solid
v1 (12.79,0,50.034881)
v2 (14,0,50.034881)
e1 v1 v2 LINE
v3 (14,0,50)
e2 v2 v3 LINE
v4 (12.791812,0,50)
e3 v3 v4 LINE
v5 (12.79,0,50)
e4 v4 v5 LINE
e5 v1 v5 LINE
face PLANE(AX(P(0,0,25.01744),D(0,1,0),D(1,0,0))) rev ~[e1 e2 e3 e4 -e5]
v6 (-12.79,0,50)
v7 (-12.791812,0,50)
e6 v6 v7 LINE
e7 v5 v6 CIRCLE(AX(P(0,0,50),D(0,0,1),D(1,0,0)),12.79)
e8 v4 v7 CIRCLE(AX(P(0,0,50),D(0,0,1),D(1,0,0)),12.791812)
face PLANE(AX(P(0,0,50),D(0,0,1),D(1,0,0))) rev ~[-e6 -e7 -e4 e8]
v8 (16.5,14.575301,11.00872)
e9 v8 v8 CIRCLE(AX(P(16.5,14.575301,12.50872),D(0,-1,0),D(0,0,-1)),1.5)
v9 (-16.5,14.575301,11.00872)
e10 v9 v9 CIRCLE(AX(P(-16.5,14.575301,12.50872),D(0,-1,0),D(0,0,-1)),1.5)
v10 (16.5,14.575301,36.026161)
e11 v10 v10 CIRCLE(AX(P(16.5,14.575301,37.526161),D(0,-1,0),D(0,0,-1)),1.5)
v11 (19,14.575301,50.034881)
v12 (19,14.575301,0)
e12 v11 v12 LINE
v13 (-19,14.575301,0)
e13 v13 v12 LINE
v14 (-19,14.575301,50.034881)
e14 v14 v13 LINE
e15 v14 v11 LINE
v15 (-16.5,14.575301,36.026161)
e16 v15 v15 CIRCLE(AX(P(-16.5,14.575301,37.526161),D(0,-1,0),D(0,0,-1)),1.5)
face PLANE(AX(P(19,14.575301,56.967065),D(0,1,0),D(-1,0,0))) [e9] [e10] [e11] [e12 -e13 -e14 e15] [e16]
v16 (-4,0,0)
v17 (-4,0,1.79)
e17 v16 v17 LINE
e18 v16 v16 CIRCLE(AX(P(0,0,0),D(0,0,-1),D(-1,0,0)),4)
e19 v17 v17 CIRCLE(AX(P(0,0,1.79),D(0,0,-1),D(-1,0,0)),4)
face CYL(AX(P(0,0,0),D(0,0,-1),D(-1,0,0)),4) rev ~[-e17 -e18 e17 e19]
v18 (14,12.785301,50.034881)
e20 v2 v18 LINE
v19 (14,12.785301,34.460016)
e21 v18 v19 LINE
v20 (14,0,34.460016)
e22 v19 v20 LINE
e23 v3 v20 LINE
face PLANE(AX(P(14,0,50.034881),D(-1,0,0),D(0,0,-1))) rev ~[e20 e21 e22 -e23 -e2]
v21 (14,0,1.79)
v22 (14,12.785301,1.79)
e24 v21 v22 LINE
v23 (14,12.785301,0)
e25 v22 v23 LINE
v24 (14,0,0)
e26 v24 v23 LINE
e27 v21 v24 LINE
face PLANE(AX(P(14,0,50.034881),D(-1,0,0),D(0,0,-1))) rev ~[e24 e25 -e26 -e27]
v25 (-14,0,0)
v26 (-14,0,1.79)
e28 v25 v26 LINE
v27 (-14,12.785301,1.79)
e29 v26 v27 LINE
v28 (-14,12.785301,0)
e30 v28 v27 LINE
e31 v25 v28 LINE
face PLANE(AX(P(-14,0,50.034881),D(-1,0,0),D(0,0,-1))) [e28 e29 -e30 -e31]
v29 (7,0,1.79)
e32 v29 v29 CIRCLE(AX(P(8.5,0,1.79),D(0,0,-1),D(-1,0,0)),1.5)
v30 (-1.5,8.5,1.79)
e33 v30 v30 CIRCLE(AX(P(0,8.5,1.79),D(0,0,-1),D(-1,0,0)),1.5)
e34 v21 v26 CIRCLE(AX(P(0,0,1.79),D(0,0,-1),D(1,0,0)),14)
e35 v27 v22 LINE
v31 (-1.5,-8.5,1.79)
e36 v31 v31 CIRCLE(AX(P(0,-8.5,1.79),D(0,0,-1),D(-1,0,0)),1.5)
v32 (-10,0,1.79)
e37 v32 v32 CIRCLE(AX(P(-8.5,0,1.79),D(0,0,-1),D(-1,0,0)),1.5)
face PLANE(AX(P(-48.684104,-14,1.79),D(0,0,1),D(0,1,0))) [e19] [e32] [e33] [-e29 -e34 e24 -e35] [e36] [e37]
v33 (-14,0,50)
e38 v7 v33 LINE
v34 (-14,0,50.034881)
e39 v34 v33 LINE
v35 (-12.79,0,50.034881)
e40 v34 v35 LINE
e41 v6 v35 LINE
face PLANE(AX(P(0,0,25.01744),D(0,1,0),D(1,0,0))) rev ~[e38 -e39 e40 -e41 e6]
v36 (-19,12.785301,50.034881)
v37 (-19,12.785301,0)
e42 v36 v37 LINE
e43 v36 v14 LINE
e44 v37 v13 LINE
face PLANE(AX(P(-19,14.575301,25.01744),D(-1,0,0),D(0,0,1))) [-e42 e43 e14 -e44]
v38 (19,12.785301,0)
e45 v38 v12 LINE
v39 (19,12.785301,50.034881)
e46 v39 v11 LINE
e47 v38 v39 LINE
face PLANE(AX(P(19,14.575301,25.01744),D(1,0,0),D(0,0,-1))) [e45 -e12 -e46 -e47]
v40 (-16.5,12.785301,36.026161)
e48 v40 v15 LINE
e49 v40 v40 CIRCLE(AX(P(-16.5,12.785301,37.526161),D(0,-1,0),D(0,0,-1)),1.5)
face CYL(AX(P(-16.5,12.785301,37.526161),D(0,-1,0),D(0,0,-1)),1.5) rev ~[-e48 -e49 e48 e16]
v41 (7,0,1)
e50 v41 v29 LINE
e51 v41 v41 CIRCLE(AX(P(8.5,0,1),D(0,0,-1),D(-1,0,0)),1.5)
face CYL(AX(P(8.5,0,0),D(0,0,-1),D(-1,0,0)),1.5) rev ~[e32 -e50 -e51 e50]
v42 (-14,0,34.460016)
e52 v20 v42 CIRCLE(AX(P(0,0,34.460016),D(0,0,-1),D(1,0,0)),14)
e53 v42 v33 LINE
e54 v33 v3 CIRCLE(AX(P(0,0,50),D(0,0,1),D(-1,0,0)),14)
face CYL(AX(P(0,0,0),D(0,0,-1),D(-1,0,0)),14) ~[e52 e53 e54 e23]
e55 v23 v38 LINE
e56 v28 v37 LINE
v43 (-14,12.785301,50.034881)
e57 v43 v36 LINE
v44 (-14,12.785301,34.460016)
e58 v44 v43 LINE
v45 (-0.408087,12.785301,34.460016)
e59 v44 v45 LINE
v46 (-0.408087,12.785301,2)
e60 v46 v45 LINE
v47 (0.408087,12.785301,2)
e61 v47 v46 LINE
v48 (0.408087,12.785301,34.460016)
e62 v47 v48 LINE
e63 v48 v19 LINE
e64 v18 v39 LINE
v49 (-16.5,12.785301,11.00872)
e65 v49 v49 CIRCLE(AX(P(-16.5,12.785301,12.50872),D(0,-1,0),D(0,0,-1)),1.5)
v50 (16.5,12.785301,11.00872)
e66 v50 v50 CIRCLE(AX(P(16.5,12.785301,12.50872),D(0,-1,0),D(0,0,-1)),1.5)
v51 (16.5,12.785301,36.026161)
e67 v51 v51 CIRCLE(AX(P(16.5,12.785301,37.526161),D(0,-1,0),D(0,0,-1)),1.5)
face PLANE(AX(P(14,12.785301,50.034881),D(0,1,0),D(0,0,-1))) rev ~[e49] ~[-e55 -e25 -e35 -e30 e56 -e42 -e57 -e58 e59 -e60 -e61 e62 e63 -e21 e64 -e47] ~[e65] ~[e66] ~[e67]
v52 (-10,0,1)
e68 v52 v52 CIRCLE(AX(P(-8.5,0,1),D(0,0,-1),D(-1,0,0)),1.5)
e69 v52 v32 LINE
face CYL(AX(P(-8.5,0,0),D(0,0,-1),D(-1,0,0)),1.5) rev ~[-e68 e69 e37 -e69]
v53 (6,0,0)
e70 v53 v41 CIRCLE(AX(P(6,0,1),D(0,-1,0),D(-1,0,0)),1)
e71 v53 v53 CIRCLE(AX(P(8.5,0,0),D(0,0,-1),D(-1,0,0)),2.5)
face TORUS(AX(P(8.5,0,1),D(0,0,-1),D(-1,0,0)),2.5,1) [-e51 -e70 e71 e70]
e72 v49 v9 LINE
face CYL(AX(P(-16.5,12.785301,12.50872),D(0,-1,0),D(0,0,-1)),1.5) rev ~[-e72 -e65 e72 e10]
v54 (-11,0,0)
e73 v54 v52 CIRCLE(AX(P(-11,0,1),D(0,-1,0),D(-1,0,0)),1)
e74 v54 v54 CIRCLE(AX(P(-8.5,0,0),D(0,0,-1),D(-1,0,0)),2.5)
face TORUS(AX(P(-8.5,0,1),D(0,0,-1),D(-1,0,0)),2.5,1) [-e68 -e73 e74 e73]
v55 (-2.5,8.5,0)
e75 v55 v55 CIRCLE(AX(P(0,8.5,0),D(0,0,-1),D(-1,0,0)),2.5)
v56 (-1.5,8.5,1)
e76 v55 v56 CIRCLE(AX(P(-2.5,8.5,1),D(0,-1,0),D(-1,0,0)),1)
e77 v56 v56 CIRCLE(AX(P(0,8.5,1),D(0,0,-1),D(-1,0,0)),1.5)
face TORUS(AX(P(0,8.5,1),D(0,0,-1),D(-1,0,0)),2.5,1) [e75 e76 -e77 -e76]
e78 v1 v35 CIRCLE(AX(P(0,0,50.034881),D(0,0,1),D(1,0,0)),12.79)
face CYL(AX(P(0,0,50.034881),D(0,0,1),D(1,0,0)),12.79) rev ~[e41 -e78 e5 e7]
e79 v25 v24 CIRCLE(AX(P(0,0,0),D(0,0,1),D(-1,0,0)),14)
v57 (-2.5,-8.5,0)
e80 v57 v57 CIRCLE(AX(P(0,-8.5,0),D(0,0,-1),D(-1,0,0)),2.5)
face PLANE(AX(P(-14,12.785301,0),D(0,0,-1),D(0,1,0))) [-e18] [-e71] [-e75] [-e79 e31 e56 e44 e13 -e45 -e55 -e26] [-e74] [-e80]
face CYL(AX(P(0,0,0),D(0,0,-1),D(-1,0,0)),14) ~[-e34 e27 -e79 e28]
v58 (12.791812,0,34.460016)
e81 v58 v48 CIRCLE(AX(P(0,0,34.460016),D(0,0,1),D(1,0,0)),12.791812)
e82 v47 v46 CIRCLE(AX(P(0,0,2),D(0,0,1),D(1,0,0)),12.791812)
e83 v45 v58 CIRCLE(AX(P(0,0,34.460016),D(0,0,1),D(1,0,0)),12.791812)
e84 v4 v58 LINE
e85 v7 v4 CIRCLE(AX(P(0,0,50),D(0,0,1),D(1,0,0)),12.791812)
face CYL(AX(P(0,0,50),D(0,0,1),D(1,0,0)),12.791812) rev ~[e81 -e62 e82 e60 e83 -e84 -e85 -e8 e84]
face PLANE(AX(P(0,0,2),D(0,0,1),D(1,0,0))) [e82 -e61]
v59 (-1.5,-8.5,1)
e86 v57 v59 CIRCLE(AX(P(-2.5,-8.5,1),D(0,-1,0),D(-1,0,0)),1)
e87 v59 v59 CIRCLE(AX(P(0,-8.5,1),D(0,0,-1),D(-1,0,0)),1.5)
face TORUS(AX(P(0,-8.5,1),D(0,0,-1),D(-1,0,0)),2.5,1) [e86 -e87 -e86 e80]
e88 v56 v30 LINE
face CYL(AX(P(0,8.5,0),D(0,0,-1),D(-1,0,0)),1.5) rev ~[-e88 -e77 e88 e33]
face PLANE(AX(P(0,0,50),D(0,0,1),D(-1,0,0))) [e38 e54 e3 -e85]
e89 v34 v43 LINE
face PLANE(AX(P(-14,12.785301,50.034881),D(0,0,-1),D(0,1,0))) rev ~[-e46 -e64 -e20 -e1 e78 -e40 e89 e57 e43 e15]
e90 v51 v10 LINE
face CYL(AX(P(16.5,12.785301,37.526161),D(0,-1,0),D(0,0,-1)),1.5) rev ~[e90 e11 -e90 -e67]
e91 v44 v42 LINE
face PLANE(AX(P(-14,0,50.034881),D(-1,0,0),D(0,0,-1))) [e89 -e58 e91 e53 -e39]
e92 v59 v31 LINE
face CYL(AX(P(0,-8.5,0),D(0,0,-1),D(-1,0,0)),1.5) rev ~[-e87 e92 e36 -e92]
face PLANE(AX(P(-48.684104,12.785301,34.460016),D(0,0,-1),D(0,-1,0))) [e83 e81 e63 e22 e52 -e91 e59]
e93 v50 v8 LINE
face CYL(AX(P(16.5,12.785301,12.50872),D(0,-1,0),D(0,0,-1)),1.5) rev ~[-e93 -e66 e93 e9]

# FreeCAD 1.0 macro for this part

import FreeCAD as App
import Part
import Sketcher


def edges_at(feature, points):
    """Names of the edges that pass closest to the given points."""
    edges = feature.Shape.Edges
    near = lambda p: min(range(len(edges)), key=lambda i: edges[i].distToShape(Part.Vertex(*p))[0])
    return sorted({f"Edge{near(p) + 1}" for p in points})

doc = App.newDocument("Part")
body = doc.addObject("PartDesign::Body", "Body")

# Sketch on XY plane
sketch1 = doc.addObject("Sketcher::SketchObject", "Sketch")
body.addObject(sketch1)
sketch1.AttachmentSupport = (doc.XY_Plane, [""])
sketch1.MapMode = "FlatFace"
sketch1.addGeometry(Part.Circle(App.Vector(0, 0, 0), App.Vector(0, 0, 1), 14), False)
sketch1.addConstraint([
    Sketcher.Constraint("Coincident", 0, 3, -1, 1),
    Sketcher.Constraint("Diameter", 0, 28.0),
])
pad1 = doc.addObject("PartDesign::Pad", "Pad")
body.addObject(pad1)
pad1.Profile = sketch1
pad1.Length = 50

# Sketch on XZ plane
sketch2 = doc.addObject("Sketcher::SketchObject", "Sketch001")
body.addObject(sketch2)
sketch2.AttachmentSupport = (doc.XZ_Plane, [""])
sketch2.MapMode = "FlatFace"
sketch2.addGeometry([
    Part.LineSegment(App.Vector(-14, 0, 0), App.Vector(-14, 50, 0)),
    Part.LineSegment(App.Vector(-14, 50, 0), App.Vector(14, 50, 0)),
    Part.LineSegment(App.Vector(14, 50, 0), App.Vector(14, 0, 0)),
    Part.LineSegment(App.Vector(14, 0, 0), App.Vector(-14, 0, 0)),
], False)
sketch2.addConstraint([
    Sketcher.Constraint("Coincident", 0, 2, 1, 1),
    Sketcher.Constraint("Coincident", 1, 2, 2, 1),
    Sketcher.Constraint("Coincident", 2, 2, 3, 1),
    Sketcher.Constraint("Coincident", 3, 2, 0, 1),
    Sketcher.Constraint("Vertical", 0),
    Sketcher.Constraint("Horizontal", 1),
    Sketcher.Constraint("Vertical", 2),
    Sketcher.Constraint("Horizontal", 3),
    Sketcher.Constraint("Symmetric", 2, 2, 3, 2, -1, 1),
    Sketcher.Constraint("DistanceX", 1, 1, 1, 2, 28.0),
    Sketcher.Constraint("DistanceY", 0, 1, 0, 2, 50.034881),
])
pad2 = doc.addObject("PartDesign::Pad", "Pad001")
body.addObject(pad2)
pad2.Profile = sketch2
pad2.Length = 21
pad2.Reversed = True

# Sketch on XY plane
sketch3 = doc.addObject("Sketcher::SketchObject", "Sketch002")
body.addObject(sketch3)
sketch3.AttachmentSupport = (doc.XY_Plane, [""])
sketch3.MapMode = "FlatFace"
sketch3.AttachmentOffset = App.Placement(App.Vector(0, 0, 50), App.Rotation())
sketch3.addGeometry(Part.Circle(App.Vector(0, 0, 0), App.Vector(0, 0, 1), 13), False)
sketch3.addConstraint([
    Sketcher.Constraint("Coincident", 0, 3, -1, 1),
    Sketcher.Constraint("Diameter", 0, 25.583624),
])
pocket1 = doc.addObject("PartDesign::Pocket", "Pocket")
body.addObject(pocket1)
pocket1.Profile = sketch3
pocket1.Length = 48

# Sketch on XY plane
sketch4 = doc.addObject("Sketcher::SketchObject", "Sketch003")
body.addObject(sketch4)
sketch4.AttachmentSupport = (doc.XY_Plane, [""])
sketch4.MapMode = "FlatFace"
sketch4.addGeometry(Part.Circle(App.Vector(0, 0, 0), App.Vector(0, 0, 1), 4), False)
sketch4.addConstraint([
    Sketcher.Constraint("Coincident", 0, 3, -1, 1),
    Sketcher.Constraint("Diameter", 0, 8.0),
])
pocket2 = doc.addObject("PartDesign::Pocket", "Pocket001")
body.addObject(pocket2)
pocket2.Profile = sketch4
pocket2.Length = 49
pocket2.Reversed = True

# Sketch on XY plane
sketch5 = doc.addObject("Sketcher::SketchObject", "Sketch004")
body.addObject(sketch5)
sketch5.AttachmentSupport = (doc.XY_Plane, [""])
sketch5.MapMode = "FlatFace"
sketch5.addGeometry([
    Part.Circle(App.Vector(0, -8.5, 0), App.Vector(0, 0, 1), 1.5),
    Part.Circle(App.Vector(0, 8.5, 0), App.Vector(0, 0, 1), 1.5),
    Part.Circle(App.Vector(-8.5, 0, 0), App.Vector(0, 0, 1), 1.5),
    Part.Circle(App.Vector(8.5, 0, 0), App.Vector(0, 0, 1), 1.5),
], False)
sketch5.addConstraint([
    Sketcher.Constraint("Equal", 0, 1),
    Sketcher.Constraint("Equal", 1, 2),
    Sketcher.Constraint("Equal", 2, 3),
    Sketcher.Constraint("Symmetric", 0, 3, 1, 3, -1, 1),
    Sketcher.Constraint("Symmetric", 2, 3, 3, 3, -1, 1),
    Sketcher.Constraint("PointOnObject", 0, 3, -2),
    Sketcher.Constraint("PointOnObject", 2, 3, -1),
    Sketcher.Constraint("Diameter", 0, 3.0),
    Sketcher.Constraint("DistanceY", 0, 3, 1, 3, 17.0),
    Sketcher.Constraint("DistanceX", 2, 3, 3, 3, 17.0),
])
pocket3 = doc.addObject("PartDesign::Pocket", "Pocket002")
body.addObject(pocket3)
pocket3.Profile = sketch5
pocket3.Length = 49
pocket3.Reversed = True

# Sketch on XY plane
sketch6 = doc.addObject("Sketcher::SketchObject", "Sketch005")
body.addObject(sketch6)
sketch6.AttachmentSupport = (doc.XY_Plane, [""])
sketch6.MapMode = "FlatFace"
sketch6.AttachmentOffset = App.Placement(App.Vector(0, 0, 50.034881), App.Rotation())
sketch6.addGeometry(Part.Circle(App.Vector(0, 0, 0), App.Vector(0, 0, 1), 13), False)
sketch6.addConstraint([
    Sketcher.Constraint("Coincident", 0, 3, -1, 1),
    Sketcher.Constraint("Diameter", 0, 25.58),
])
pocket4 = doc.addObject("PartDesign::Pocket", "Pocket003")
body.addObject(pocket4)
pocket4.Profile = sketch6
pocket4.Length = 21

# Sketch on XY plane
sketch7 = doc.addObject("Sketcher::SketchObject", "Sketch006")
body.addObject(sketch7)
sketch7.AttachmentSupport = (doc.XY_Plane, [""])
sketch7.MapMode = "FlatFace"
sketch7.AttachmentOffset = App.Placement(App.Vector(0, 0, 50.034881), App.Rotation())
sketch7.addGeometry([
    Part.LineSegment(App.Vector(-14, 21, 0), App.Vector(-14, 16.4, 0)),
    Part.LineSegment(App.Vector(-14, 16.4, 0), App.Vector(14, 16.4, 0)),
    Part.LineSegment(App.Vector(14, 16.4, 0), App.Vector(14, 21, 0)),
    Part.LineSegment(App.Vector(14, 21, 0), App.Vector(-14, 21, 0)),
], False)
sketch7.addConstraint([
    Sketcher.Constraint("Coincident", 0, 2, 1, 1),
    Sketcher.Constraint("Coincident", 1, 2, 2, 1),
    Sketcher.Constraint("Coincident", 2, 2, 3, 1),
    Sketcher.Constraint("Coincident", 3, 2, 0, 1),
    Sketcher.Constraint("Vertical", 0),
    Sketcher.Constraint("Horizontal", 1),
    Sketcher.Constraint("Vertical", 2),
    Sketcher.Constraint("Horizontal", 3),
    Sketcher.Constraint("DistanceX", 1, 1, 1, 2, 28.0),
    Sketcher.Constraint("DistanceX", 0, 2, -1, 1, 14.0),
    Sketcher.Constraint("DistanceY", -1, 1, 2, 2, 21.0),
    Sketcher.Constraint("DistanceY", 0, 2, 0, 1, 4.634699),
])
pocket5 = doc.addObject("PartDesign::Pocket", "Pocket004")
body.addObject(pocket5)
pocket5.Profile = sketch7
pocket5.Length = 53

# Sketch on YZ plane
sketch8 = doc.addObject("Sketcher::SketchObject", "Sketch007")
body.addObject(sketch8)
sketch8.AttachmentSupport = (doc.YZ_Plane, [""])
sketch8.MapMode = "FlatFace"
sketch8.AttachmentOffset = App.Placement(App.Vector(0, 0, 14), App.Rotation())
sketch8.addGeometry([
    Part.LineSegment(App.Vector(16.4, 50, 0), App.Vector(12.8, 50, 0)),
    Part.LineSegment(App.Vector(12.8, 50, 0), App.Vector(12.8, 0, 0)),
    Part.LineSegment(App.Vector(12.8, 0, 0), App.Vector(16.4, 0, 0)),
    Part.LineSegment(App.Vector(16.4, 0, 0), App.Vector(16.4, 50, 0)),
], False)
sketch8.addConstraint([
    Sketcher.Constraint("Coincident", 0, 2, 1, 1),
    Sketcher.Constraint("Coincident", 1, 2, 2, 1),
    Sketcher.Constraint("Coincident", 2, 2, 3, 1),
    Sketcher.Constraint("Coincident", 3, 2, 0, 1),
    Sketcher.Constraint("Horizontal", 0),
    Sketcher.Constraint("Vertical", 1),
    Sketcher.Constraint("Horizontal", 2),
    Sketcher.Constraint("Vertical", 3),
    Sketcher.Constraint("PointOnObject", 1, 2, -1),
    Sketcher.Constraint("DistanceX", 0, 2, 0, 1, 3.58),
    Sketcher.Constraint("DistanceY", 1, 2, 1, 1, 50.034881),
    Sketcher.Constraint("DistanceX", -1, 1, 0, 2, 12.785301),
])
pad3 = doc.addObject("PartDesign::Pad", "Pad002")
body.addObject(pad3)
pad3.Profile = sketch8
pad3.Length = 5

# Sketch on XZ plane
sketch9 = doc.addObject("Sketcher::SketchObject", "Sketch008")
body.addObject(sketch9)
sketch9.AttachmentSupport = (doc.XZ_Plane, [""])
sketch9.MapMode = "FlatFace"
sketch9.AttachmentOffset = App.Placement(App.Vector(0, 0, -12.785301), App.Rotation())
sketch9.addGeometry([
    Part.Circle(App.Vector(16.5, 37.5, 0), App.Vector(0, 0, 1), 1.5),
    Part.Circle(App.Vector(16.5, 12.5, 0), App.Vector(0, 0, 1), 1.5),
], False)
sketch9.addConstraint([
    Sketcher.Constraint("Equal", 0, 1),
    Sketcher.Constraint("Vertical", 0, 3, 1, 3),
    Sketcher.Constraint("Diameter", 0, 3.0),
    Sketcher.Constraint("DistanceX", -1, 1, 0, 3, 16.5),
    Sketcher.Constraint("DistanceY", -1, 1, 0, 3, 37.526161),
    Sketcher.Constraint("DistanceY", -1, 1, 1, 3, 12.50872),
])
pocket6 = doc.addObject("PartDesign::Pocket", "Pocket005")
body.addObject(pocket6)
pocket6.Profile = sketch9
pocket6.Length = 5

# Sketch on YZ plane
sketch10 = doc.addObject("Sketcher::SketchObject", "Sketch009")
body.addObject(sketch10)
sketch10.AttachmentSupport = (doc.YZ_Plane, [""])
sketch10.MapMode = "FlatFace"
sketch10.AttachmentOffset = App.Placement(App.Vector(0, 0, -14), App.Rotation())
sketch10.addGeometry([
    Part.LineSegment(App.Vector(16.4, 0, 0), App.Vector(12.8, 0, 0)),
    Part.LineSegment(App.Vector(12.8, 0, 0), App.Vector(12.8, 50, 0)),
    Part.LineSegment(App.Vector(12.8, 50, 0), App.Vector(16.4, 50, 0)),
    Part.LineSegment(App.Vector(16.4, 50, 0), App.Vector(16.4, 0, 0)),
], False)
sketch10.addConstraint([
    Sketcher.Constraint("Coincident", 0, 2, 1, 1),
    Sketcher.Constraint("Coincident", 1, 2, 2, 1),
    Sketcher.Constraint("Coincident", 2, 2, 3, 1),
    Sketcher.Constraint("Coincident", 3, 2, 0, 1),
    Sketcher.Constraint("Horizontal", 0),
    Sketcher.Constraint("Vertical", 1),
    Sketcher.Constraint("Horizontal", 2),
    Sketcher.Constraint("Vertical", 3),
    Sketcher.Constraint("PointOnObject", 0, 2, -1),
    Sketcher.Constraint("DistanceX", 0, 2, 0, 1, 3.58),
    Sketcher.Constraint("DistanceY", 1, 1, 1, 2, 50.034881),
    Sketcher.Constraint("DistanceX", -1, 1, 0, 2, 12.785301),
])
pad4 = doc.addObject("PartDesign::Pad", "Pad003")
body.addObject(pad4)
pad4.Profile = sketch10
pad4.Length = 5
pad4.Reversed = True

# Sketch on XZ plane
sketch11 = doc.addObject("Sketcher::SketchObject", "Sketch010")
body.addObject(sketch11)
sketch11.AttachmentSupport = (doc.XZ_Plane, [""])
sketch11.MapMode = "FlatFace"
sketch11.AttachmentOffset = App.Placement(App.Vector(0, 0, -12.785301), App.Rotation())
sketch11.addGeometry([
    Part.Circle(App.Vector(-16.5, 12.5, 0), App.Vector(0, 0, 1), 1.5),
    Part.Circle(App.Vector(-16.5, 37.5, 0), App.Vector(0, 0, 1), 1.5),
], False)
sketch11.addConstraint([
    Sketcher.Constraint("Equal", 0, 1),
    Sketcher.Constraint("Vertical", 0, 3, 1, 3),
    Sketcher.Constraint("Diameter", 0, 3.0),
    Sketcher.Constraint("DistanceX", 0, 3, -1, 1, 16.5),
    Sketcher.Constraint("DistanceY", -1, 1, 0, 3, 12.50872),
    Sketcher.Constraint("DistanceY", -1, 1, 1, 3, 37.526161),
])
pocket7 = doc.addObject("PartDesign::Pocket", "Pocket006")
body.addObject(pocket7)
pocket7.Profile = sketch11
pocket7.Length = 5
doc.recompute()

fillet = doc.addObject("PartDesign::Fillet", "Fillet")
body.addObject(fillet)
fillet.Base = (pocket7, edges_at(pocket7, [(10, 0, 0)]))
fillet.Radius = 1
doc.recompute()

fillet2 = doc.addObject("PartDesign::Fillet", "Fillet001")
body.addObject(fillet2)
fillet2.Base = (fillet, edges_at(fillet, [(1.5, -8.5, 0), (1.5, 8.5, 0), (-7, 0, 0)]))
fillet2.Radius = 1

# Sketch on XY plane
sketch12 = doc.addObject("Sketcher::SketchObject", "Sketch011")
body.addObject(sketch12)
sketch12.AttachmentSupport = (doc.XY_Plane, [""])
sketch12.MapMode = "FlatFace"
sketch12.addGeometry([
    Part.LineSegment(App.Vector(19, 16.4, 0), App.Vector(19, 14.6, 0)),
    Part.LineSegment(App.Vector(19, 14.6, 0), App.Vector(-19, 14.6, 0)),
    Part.LineSegment(App.Vector(-19, 14.6, 0), App.Vector(-19, 16.4, 0)),
    Part.LineSegment(App.Vector(-19, 16.4, 0), App.Vector(19, 16.4, 0)),
], False)
sketch12.addConstraint([
    Sketcher.Constraint("Coincident", 0, 2, 1, 1),
    Sketcher.Constraint("Coincident", 1, 2, 2, 1),
    Sketcher.Constraint("Coincident", 2, 2, 3, 1),
    Sketcher.Constraint("Coincident", 3, 2, 0, 1),
    Sketcher.Constraint("Vertical", 0),
    Sketcher.Constraint("Horizontal", 1),
    Sketcher.Constraint("Vertical", 2),
    Sketcher.Constraint("Horizontal", 3),
    Sketcher.Constraint("DistanceX", 1, 2, 1, 1, 38.0),
    Sketcher.Constraint("DistanceX", -1, 1, 0, 2, 19.0),
    Sketcher.Constraint("DistanceY", 0, 2, 0, 1, 1.79),
    Sketcher.Constraint("DistanceY", -1, 1, 0, 2, 14.575301),
])
pocket8 = doc.addObject("PartDesign::Pocket", "Pocket007")
body.addObject(pocket8)
pocket8.Profile = sketch12
pocket8.Type = "ThroughAll"
pocket8.Midplane = True

# Sketch on YZ plane
sketch13 = doc.addObject("Sketcher::SketchObject", "Sketch012")
body.addObject(sketch13)
sketch13.AttachmentSupport = (doc.YZ_Plane, [""])
sketch13.MapMode = "FlatFace"
sketch13.AttachmentOffset = App.Placement(App.Vector(0, 0, 14), App.Rotation())
sketch13.addGeometry([
    Part.LineSegment(App.Vector(-14, 34, 0), App.Vector(-14, 2, 0)),
    Part.LineSegment(App.Vector(-14, 2, 0), App.Vector(13, 2, 0)),
    Part.LineSegment(App.Vector(13, 2, 0), App.Vector(13, 34, 0)),
    Part.LineSegment(App.Vector(13, 34, 0), App.Vector(-14, 34, 0)),
], False)
sketch13.addConstraint([
    Sketcher.Constraint("Coincident", 0, 2, 1, 1),
    Sketcher.Constraint("Coincident", 1, 2, 2, 1),
    Sketcher.Constraint("Coincident", 2, 2, 3, 1),
    Sketcher.Constraint("Coincident", 3, 2, 0, 1),
    Sketcher.Constraint("Vertical", 0),
    Sketcher.Constraint("Horizontal", 1),
    Sketcher.Constraint("Vertical", 2),
    Sketcher.Constraint("Horizontal", 3),
    Sketcher.Constraint("DistanceX", 0, 2, -1, 1, 14.0),
    Sketcher.Constraint("DistanceY", -1, 1, 0, 2, 1.79),
    Sketcher.Constraint("DistanceX", 1, 1, 1, 2, 26.785301),
    Sketcher.Constraint("DistanceY", 0, 2, 0, 1, 32.670016),
])
pocket9 = doc.addObject("PartDesign::Pocket", "Pocket008")
body.addObject(pocket9)
pocket9.Profile = sketch13
pocket9.Type = "ThroughAll"
pocket9.Midplane = True

doc.recompute()
